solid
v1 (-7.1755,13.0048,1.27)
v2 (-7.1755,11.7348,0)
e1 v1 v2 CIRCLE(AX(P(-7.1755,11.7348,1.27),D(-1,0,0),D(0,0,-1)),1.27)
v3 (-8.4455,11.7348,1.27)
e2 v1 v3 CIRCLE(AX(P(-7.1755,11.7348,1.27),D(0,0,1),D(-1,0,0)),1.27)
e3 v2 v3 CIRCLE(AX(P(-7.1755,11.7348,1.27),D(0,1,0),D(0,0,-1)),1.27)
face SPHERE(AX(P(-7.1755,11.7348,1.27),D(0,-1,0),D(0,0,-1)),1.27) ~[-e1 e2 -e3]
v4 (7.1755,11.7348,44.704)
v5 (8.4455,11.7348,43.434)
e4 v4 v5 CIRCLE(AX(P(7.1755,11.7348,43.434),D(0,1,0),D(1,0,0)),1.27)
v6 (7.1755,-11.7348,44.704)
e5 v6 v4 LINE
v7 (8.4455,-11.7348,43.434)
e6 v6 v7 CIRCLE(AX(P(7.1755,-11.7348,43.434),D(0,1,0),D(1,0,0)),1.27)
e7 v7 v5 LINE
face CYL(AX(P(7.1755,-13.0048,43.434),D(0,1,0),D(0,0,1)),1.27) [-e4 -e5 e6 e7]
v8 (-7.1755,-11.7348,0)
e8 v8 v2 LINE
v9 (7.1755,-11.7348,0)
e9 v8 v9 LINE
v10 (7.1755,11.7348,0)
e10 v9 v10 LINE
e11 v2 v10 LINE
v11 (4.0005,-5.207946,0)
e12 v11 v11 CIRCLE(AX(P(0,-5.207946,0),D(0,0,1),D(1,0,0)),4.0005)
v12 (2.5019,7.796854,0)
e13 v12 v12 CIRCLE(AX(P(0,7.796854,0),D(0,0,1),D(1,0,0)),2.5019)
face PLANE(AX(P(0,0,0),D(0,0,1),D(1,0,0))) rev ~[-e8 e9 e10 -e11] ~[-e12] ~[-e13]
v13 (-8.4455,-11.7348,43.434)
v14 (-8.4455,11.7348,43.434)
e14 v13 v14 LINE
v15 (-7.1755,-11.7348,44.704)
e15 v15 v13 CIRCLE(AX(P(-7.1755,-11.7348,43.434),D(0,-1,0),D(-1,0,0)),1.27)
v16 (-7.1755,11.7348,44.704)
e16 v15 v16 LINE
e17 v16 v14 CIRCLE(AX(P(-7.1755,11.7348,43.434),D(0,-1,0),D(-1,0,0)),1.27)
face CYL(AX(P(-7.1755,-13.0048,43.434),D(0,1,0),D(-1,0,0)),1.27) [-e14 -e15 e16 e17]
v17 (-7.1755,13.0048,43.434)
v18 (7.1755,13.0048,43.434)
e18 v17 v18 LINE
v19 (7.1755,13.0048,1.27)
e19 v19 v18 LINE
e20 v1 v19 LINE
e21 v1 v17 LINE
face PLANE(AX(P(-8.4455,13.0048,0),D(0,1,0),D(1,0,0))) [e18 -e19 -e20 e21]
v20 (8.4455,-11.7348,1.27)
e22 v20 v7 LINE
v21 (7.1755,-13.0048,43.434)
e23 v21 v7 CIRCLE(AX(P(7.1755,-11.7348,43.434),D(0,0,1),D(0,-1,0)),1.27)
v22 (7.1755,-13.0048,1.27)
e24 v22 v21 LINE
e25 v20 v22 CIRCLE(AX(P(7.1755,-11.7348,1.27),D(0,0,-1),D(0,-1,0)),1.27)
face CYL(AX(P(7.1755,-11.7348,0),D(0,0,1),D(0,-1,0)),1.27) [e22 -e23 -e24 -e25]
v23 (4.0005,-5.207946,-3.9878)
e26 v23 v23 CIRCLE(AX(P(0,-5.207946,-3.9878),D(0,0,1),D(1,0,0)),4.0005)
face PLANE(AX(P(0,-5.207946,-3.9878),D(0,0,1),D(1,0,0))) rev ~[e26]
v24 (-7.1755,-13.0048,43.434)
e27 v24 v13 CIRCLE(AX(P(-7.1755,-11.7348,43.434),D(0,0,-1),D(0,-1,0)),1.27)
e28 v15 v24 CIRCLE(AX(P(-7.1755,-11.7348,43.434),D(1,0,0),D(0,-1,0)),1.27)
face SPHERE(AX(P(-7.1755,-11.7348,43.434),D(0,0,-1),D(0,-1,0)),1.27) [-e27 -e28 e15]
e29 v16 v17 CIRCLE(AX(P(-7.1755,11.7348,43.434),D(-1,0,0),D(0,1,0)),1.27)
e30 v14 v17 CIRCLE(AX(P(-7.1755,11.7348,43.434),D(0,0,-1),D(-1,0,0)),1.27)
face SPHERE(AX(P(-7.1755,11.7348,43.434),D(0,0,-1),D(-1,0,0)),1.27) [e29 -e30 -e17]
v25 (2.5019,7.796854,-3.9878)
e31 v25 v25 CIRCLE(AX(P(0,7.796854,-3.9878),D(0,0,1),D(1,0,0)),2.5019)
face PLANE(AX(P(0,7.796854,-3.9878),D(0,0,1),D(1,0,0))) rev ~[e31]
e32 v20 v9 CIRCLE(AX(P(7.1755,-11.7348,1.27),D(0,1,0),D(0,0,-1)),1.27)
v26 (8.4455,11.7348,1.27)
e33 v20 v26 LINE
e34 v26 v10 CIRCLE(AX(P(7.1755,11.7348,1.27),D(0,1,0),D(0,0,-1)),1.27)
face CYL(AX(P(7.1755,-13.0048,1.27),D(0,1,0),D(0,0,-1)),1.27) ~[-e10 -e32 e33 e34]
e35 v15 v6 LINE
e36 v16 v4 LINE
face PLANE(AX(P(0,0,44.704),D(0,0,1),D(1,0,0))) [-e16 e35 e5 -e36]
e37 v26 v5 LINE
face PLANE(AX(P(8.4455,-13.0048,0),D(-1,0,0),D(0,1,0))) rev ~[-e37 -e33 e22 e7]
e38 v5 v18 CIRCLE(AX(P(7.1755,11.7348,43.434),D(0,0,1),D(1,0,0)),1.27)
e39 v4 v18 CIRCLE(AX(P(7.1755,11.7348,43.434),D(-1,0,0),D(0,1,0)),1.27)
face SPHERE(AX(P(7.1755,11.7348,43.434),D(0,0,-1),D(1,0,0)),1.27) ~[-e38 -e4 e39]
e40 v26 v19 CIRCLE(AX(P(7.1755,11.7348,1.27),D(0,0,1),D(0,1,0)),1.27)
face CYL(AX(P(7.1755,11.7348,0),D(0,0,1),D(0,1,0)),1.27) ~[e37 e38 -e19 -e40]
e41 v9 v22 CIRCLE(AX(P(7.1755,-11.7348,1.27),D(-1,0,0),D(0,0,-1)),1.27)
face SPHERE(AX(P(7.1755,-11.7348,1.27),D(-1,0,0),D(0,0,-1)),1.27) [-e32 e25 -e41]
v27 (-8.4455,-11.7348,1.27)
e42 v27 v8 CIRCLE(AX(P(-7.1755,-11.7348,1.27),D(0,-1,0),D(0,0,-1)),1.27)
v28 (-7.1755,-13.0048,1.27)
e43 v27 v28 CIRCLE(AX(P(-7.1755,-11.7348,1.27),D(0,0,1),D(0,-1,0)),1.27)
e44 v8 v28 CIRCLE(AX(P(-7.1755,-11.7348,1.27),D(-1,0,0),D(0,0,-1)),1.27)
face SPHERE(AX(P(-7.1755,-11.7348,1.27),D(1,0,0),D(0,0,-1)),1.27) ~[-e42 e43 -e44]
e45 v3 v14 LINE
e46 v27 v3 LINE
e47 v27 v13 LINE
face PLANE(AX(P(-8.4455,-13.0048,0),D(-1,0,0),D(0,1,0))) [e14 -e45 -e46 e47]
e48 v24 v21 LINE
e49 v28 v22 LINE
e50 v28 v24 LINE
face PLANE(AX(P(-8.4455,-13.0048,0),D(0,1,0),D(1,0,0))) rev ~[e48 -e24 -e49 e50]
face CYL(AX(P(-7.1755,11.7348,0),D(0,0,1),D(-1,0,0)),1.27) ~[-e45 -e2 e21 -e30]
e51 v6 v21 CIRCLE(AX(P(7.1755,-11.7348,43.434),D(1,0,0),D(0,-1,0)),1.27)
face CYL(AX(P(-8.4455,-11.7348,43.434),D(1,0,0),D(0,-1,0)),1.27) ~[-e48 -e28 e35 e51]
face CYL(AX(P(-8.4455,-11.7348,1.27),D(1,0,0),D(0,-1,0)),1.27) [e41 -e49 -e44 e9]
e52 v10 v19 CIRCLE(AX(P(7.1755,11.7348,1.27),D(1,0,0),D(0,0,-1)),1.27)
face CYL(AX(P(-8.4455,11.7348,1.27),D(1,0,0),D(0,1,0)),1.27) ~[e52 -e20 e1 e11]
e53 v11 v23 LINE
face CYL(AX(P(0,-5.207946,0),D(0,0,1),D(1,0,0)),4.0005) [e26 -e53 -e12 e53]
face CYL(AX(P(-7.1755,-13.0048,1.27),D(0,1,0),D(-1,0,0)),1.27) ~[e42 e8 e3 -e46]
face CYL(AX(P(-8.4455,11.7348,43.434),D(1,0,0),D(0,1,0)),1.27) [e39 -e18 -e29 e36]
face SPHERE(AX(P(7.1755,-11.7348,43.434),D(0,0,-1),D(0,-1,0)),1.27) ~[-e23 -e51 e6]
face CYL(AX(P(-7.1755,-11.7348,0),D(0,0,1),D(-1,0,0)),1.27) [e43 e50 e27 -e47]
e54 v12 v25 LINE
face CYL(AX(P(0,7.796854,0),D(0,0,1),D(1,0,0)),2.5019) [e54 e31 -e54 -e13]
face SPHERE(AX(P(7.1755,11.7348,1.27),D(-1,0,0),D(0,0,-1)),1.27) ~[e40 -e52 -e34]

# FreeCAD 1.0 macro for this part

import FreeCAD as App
import Part
import Sketcher
Q = App.Units.Quantity


def edges_at(feature, points):
    """Names of the edges that pass closest to the given points."""
    edges = feature.Shape.Edges
    near = lambda p: min(range(len(edges)), key=lambda i: edges[i].distToShape(Part.Vertex(*p))[0])
    return sorted({f"Edge{near(p) + 1}" for p in points})

doc = App.newDocument("Part")
body = doc.addObject("PartDesign::Body", "Body")

# Sketch on XY plane
sketch1 = body.newObject("Sketcher::SketchObject", "Sketch")
sketch1.AttachmentSupport = (doc.getObject("XY_Plane"), [""])
sketch1.MapMode = "FlatFace"
sketch1.addGeometry([
    Part.LineSegment(App.Vector(-8.4455, 13.0048, 0), App.Vector(-8.4455, -13.0048, 0)),
    Part.LineSegment(App.Vector(-8.4455, -13.0048, 0), App.Vector(8.4455, -13.0048, 0)),
    Part.LineSegment(App.Vector(8.4455, -13.0048, 0), App.Vector(8.4455, 13.0048, 0)),
    Part.LineSegment(App.Vector(8.4455, 13.0048, 0), App.Vector(-8.4455, 13.0048, 0)),
], False)
sketch1.addConstraint([
    Sketcher.Constraint("Coincident", 0, 2, 1, 1),
    Sketcher.Constraint("Coincident", 1, 2, 2, 1),
    Sketcher.Constraint("Coincident", 2, 2, 3, 1),
    Sketcher.Constraint("Coincident", 3, 2, 0, 1),
    Sketcher.Constraint("Vertical", 0),
    Sketcher.Constraint("Horizontal", 1),
    Sketcher.Constraint("Vertical", 2),
    Sketcher.Constraint("Horizontal", 3),
    Sketcher.Constraint("Symmetric", 0, 2, 2, 2, -1, 1),
    Sketcher.Constraint("DistanceX", 1, 1, 1, 2, Q("0.665 in")),
    Sketcher.Constraint("DistanceY", 0, 2, 0, 1, Q("1.024 in")),
])
pad1 = body.newObject("PartDesign::Pad", "Pad")
pad1.Profile = sketch1
pad1.Length = Q("1.76 in")

# Sketch on XY plane
sketch2 = body.newObject("Sketcher::SketchObject", "Sketch001")
sketch2.AttachmentSupport = (doc.getObject("XY_Plane"), [""])
sketch2.MapMode = "FlatFace"
sketch2.addGeometry([
    Part.Circle(App.Vector(0, 7.796854, 0), App.Vector(0, 0, 1), 2.5019),
    Part.Circle(App.Vector(0, -5.207946, 0), App.Vector(0, 0, 1), 4.0005),
], False)
sketch2.addConstraint([
    Sketcher.Constraint("PointOnObject", 0, 3, -2),
    Sketcher.Constraint("PointOnObject", 1, 3, -2),
    Sketcher.Constraint("Diameter", 0, Q("0.197 in")),
    Sketcher.Constraint("Diameter", 1, Q("0.315 in")),
    Sketcher.Constraint("DistanceY", 1, 3, 0, 3, Q("0.512 in")),
    Sketcher.Constraint("DistanceY", -1, 1, 0, 3, 7.796854),
])
pad2 = body.newObject("PartDesign::Pad", "Pad001")
pad2.Profile = sketch2
pad2.Length = Q("0.157 in")
pad2.Reversed = True
doc.recompute()

fillet = body.newObject("PartDesign::Fillet", "Fillet")
fillet.Base = (pad2, edges_at(pad2, [
    (0, -13.005, 0),
    (-8.445, 0, 0),
    (0, 13.005, 0),
    (8.445, 0, 0),
    (-8.445, -13.005, 22.352),
    (-8.445, 13.005, 22.352),
    (8.445, -13.005, 22.352),
    (0, -13.005, 44.704),
    (-8.445, 0, 44.704),
    (8.445, 13.005, 22.352),
    (8.445, 0, 44.704),
    (0, 13.005, 44.704),
]))
fillet.Radius = Q("0.05 in")

doc.recompute()
